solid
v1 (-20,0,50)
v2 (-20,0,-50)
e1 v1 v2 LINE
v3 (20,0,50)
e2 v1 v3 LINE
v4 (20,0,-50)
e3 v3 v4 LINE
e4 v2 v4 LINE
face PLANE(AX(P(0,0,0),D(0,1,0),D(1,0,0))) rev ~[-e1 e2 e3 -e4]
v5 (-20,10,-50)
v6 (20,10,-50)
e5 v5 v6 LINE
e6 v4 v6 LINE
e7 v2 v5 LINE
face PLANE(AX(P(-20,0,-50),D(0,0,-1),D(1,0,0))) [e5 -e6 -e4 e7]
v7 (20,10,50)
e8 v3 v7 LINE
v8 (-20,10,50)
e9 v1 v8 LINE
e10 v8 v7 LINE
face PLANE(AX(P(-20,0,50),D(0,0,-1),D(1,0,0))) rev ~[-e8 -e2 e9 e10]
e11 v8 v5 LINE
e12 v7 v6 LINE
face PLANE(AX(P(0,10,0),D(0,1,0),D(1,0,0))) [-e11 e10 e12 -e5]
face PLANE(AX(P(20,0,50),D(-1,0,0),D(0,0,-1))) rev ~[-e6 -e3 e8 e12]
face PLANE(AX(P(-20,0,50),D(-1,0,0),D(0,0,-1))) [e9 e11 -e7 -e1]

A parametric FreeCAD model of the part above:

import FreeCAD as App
import Part
import Sketcher
Q = App.Units.Quantity

doc = App.newDocument("Part")
body = doc.addObject("PartDesign::Body", "Body")

sketch1 = body.newObject("Sketcher::SketchObject", "Sketch")
sketch1.AttachmentSupport = (doc.getObject("XZ_Plane"), [""])
sketch1.MapMode = "FlatFace"
sketch1.addGeometry(Part.LineSegment(App.Vector(-20, -50, 0), App.Vector(-20, 50, 0)), False)
sketch1.addGeometry(Part.LineSegment(App.Vector(-20, 50, 0), App.Vector(20, 50, 0)), False)
sketch1.addGeometry(Part.LineSegment(App.Vector(20, 50, 0), App.Vector(20, -50, 0)), False)
sketch1.addGeometry(Part.LineSegment(App.Vector(20, -50, 0), App.Vector(-20, -50, 0)), False)
sketch1.addConstraint(Sketcher.Constraint("Coincident", 0, 2, 1, 1))
sketch1.addConstraint(Sketcher.Constraint("Coincident", 1, 2, 2, 1))
sketch1.addConstraint(Sketcher.Constraint("Coincident", 2, 2, 3, 1))
sketch1.addConstraint(Sketcher.Constraint("Coincident", 3, 2, 0, 1))
sketch1.addConstraint(Sketcher.Constraint("Vertical", 0))
sketch1.addConstraint(Sketcher.Constraint("Horizontal", 1))
sketch1.addConstraint(Sketcher.Constraint("Vertical", 2))
sketch1.addConstraint(Sketcher.Constraint("Horizontal", 3))
sketch1.addConstraint(Sketcher.Constraint("Symmetric", 0, 2, 2, 2, -1, 1))
sketch1.addConstraint(Sketcher.Constraint("DistanceX", 1, 1, 1, 2, Q("40 mm")))
sketch1.addConstraint(Sketcher.Constraint("DistanceY", 0, 1, 0, 2, Q("100 mm")))
pad1 = body.newObject("PartDesign::Pad", "Pad")
pad1.Profile = sketch1
pad1.Length = 10
pad1.Reversed = True

doc.recompute()
